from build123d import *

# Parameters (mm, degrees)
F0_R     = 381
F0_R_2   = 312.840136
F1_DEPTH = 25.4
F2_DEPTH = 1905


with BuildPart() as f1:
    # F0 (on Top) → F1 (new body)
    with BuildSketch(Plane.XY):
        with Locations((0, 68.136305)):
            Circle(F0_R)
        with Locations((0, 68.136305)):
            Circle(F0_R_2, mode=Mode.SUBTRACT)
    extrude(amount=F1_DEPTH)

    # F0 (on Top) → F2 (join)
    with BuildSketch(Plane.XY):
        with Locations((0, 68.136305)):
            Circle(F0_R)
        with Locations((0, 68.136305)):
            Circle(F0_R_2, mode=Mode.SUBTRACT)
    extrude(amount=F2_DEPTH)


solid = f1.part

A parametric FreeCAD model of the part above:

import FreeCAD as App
import Part
import Sketcher
Q = App.Units.Quantity

doc = App.newDocument("Part")
body = doc.addObject("PartDesign::Body", "Body")

# Sketch on XY plane
sketch1 = doc.addObject("Sketcher::SketchObject", "Sketch")
body.addObject(sketch1)
sketch1.AttachmentSupport = (doc.XY_Plane, [""])
sketch1.MapMode = "FlatFace"
sketch1.addGeometry([
    Part.Circle(App.Vector(0, 68.136305, 0), App.Vector(0, 0, 1), 381),
    Part.Circle(App.Vector(0, 68.136305, 0), App.Vector(0, 0, 1), 312.840136),
], False)
sketch1.addConstraint([
    Sketcher.Constraint("Coincident", 1, 3, 0, 3),
    Sketcher.Constraint("PointOnObject", 0, 3, -2),
    Sketcher.Constraint("Diameter", 0, Q("30 in")),
    Sketcher.Constraint("Diameter", 1, Q("625.680272 mm")),
    Sketcher.Constraint("DistanceY", -1, 1, 0, 3, Q("68.136305 mm")),
])
pad1 = doc.addObject("PartDesign::Pad", "Pad")
body.addObject(pad1)
pad1.Profile = sketch1
pad1.Length = Q("1 in")

# Sketch on XY plane
sketch2 = doc.addObject("Sketcher::SketchObject", "Sketch001")
body.addObject(sketch2)
sketch2.AttachmentSupport = (doc.XY_Plane, [""])
sketch2.MapMode = "FlatFace"
sketch2.addGeometry([
    Part.Circle(App.Vector(0, 68.136305, 0), App.Vector(0, 0, 1), 381),
    Part.Circle(App.Vector(0, 68.136305, 0), App.Vector(0, 0, 1), 312.840136),
], False)
sketch2.addConstraint([
    Sketcher.Constraint("Coincident", 1, 3, 0, 3),
    Sketcher.Constraint("PointOnObject", 0, 3, -2),
    Sketcher.Constraint("Diameter", 0, Q("30 in")),
    Sketcher.Constraint("Diameter", 1, Q("625.680272 mm")),
    Sketcher.Constraint("DistanceY", -1, 1, 0, 3, Q("68.136305 mm")),
])
pad2 = doc.addObject("PartDesign::Pad", "Pad001")
body.addObject(pad2)
pad2.Profile = sketch2
pad2.Length = Q("75 in")

doc.recompute()
